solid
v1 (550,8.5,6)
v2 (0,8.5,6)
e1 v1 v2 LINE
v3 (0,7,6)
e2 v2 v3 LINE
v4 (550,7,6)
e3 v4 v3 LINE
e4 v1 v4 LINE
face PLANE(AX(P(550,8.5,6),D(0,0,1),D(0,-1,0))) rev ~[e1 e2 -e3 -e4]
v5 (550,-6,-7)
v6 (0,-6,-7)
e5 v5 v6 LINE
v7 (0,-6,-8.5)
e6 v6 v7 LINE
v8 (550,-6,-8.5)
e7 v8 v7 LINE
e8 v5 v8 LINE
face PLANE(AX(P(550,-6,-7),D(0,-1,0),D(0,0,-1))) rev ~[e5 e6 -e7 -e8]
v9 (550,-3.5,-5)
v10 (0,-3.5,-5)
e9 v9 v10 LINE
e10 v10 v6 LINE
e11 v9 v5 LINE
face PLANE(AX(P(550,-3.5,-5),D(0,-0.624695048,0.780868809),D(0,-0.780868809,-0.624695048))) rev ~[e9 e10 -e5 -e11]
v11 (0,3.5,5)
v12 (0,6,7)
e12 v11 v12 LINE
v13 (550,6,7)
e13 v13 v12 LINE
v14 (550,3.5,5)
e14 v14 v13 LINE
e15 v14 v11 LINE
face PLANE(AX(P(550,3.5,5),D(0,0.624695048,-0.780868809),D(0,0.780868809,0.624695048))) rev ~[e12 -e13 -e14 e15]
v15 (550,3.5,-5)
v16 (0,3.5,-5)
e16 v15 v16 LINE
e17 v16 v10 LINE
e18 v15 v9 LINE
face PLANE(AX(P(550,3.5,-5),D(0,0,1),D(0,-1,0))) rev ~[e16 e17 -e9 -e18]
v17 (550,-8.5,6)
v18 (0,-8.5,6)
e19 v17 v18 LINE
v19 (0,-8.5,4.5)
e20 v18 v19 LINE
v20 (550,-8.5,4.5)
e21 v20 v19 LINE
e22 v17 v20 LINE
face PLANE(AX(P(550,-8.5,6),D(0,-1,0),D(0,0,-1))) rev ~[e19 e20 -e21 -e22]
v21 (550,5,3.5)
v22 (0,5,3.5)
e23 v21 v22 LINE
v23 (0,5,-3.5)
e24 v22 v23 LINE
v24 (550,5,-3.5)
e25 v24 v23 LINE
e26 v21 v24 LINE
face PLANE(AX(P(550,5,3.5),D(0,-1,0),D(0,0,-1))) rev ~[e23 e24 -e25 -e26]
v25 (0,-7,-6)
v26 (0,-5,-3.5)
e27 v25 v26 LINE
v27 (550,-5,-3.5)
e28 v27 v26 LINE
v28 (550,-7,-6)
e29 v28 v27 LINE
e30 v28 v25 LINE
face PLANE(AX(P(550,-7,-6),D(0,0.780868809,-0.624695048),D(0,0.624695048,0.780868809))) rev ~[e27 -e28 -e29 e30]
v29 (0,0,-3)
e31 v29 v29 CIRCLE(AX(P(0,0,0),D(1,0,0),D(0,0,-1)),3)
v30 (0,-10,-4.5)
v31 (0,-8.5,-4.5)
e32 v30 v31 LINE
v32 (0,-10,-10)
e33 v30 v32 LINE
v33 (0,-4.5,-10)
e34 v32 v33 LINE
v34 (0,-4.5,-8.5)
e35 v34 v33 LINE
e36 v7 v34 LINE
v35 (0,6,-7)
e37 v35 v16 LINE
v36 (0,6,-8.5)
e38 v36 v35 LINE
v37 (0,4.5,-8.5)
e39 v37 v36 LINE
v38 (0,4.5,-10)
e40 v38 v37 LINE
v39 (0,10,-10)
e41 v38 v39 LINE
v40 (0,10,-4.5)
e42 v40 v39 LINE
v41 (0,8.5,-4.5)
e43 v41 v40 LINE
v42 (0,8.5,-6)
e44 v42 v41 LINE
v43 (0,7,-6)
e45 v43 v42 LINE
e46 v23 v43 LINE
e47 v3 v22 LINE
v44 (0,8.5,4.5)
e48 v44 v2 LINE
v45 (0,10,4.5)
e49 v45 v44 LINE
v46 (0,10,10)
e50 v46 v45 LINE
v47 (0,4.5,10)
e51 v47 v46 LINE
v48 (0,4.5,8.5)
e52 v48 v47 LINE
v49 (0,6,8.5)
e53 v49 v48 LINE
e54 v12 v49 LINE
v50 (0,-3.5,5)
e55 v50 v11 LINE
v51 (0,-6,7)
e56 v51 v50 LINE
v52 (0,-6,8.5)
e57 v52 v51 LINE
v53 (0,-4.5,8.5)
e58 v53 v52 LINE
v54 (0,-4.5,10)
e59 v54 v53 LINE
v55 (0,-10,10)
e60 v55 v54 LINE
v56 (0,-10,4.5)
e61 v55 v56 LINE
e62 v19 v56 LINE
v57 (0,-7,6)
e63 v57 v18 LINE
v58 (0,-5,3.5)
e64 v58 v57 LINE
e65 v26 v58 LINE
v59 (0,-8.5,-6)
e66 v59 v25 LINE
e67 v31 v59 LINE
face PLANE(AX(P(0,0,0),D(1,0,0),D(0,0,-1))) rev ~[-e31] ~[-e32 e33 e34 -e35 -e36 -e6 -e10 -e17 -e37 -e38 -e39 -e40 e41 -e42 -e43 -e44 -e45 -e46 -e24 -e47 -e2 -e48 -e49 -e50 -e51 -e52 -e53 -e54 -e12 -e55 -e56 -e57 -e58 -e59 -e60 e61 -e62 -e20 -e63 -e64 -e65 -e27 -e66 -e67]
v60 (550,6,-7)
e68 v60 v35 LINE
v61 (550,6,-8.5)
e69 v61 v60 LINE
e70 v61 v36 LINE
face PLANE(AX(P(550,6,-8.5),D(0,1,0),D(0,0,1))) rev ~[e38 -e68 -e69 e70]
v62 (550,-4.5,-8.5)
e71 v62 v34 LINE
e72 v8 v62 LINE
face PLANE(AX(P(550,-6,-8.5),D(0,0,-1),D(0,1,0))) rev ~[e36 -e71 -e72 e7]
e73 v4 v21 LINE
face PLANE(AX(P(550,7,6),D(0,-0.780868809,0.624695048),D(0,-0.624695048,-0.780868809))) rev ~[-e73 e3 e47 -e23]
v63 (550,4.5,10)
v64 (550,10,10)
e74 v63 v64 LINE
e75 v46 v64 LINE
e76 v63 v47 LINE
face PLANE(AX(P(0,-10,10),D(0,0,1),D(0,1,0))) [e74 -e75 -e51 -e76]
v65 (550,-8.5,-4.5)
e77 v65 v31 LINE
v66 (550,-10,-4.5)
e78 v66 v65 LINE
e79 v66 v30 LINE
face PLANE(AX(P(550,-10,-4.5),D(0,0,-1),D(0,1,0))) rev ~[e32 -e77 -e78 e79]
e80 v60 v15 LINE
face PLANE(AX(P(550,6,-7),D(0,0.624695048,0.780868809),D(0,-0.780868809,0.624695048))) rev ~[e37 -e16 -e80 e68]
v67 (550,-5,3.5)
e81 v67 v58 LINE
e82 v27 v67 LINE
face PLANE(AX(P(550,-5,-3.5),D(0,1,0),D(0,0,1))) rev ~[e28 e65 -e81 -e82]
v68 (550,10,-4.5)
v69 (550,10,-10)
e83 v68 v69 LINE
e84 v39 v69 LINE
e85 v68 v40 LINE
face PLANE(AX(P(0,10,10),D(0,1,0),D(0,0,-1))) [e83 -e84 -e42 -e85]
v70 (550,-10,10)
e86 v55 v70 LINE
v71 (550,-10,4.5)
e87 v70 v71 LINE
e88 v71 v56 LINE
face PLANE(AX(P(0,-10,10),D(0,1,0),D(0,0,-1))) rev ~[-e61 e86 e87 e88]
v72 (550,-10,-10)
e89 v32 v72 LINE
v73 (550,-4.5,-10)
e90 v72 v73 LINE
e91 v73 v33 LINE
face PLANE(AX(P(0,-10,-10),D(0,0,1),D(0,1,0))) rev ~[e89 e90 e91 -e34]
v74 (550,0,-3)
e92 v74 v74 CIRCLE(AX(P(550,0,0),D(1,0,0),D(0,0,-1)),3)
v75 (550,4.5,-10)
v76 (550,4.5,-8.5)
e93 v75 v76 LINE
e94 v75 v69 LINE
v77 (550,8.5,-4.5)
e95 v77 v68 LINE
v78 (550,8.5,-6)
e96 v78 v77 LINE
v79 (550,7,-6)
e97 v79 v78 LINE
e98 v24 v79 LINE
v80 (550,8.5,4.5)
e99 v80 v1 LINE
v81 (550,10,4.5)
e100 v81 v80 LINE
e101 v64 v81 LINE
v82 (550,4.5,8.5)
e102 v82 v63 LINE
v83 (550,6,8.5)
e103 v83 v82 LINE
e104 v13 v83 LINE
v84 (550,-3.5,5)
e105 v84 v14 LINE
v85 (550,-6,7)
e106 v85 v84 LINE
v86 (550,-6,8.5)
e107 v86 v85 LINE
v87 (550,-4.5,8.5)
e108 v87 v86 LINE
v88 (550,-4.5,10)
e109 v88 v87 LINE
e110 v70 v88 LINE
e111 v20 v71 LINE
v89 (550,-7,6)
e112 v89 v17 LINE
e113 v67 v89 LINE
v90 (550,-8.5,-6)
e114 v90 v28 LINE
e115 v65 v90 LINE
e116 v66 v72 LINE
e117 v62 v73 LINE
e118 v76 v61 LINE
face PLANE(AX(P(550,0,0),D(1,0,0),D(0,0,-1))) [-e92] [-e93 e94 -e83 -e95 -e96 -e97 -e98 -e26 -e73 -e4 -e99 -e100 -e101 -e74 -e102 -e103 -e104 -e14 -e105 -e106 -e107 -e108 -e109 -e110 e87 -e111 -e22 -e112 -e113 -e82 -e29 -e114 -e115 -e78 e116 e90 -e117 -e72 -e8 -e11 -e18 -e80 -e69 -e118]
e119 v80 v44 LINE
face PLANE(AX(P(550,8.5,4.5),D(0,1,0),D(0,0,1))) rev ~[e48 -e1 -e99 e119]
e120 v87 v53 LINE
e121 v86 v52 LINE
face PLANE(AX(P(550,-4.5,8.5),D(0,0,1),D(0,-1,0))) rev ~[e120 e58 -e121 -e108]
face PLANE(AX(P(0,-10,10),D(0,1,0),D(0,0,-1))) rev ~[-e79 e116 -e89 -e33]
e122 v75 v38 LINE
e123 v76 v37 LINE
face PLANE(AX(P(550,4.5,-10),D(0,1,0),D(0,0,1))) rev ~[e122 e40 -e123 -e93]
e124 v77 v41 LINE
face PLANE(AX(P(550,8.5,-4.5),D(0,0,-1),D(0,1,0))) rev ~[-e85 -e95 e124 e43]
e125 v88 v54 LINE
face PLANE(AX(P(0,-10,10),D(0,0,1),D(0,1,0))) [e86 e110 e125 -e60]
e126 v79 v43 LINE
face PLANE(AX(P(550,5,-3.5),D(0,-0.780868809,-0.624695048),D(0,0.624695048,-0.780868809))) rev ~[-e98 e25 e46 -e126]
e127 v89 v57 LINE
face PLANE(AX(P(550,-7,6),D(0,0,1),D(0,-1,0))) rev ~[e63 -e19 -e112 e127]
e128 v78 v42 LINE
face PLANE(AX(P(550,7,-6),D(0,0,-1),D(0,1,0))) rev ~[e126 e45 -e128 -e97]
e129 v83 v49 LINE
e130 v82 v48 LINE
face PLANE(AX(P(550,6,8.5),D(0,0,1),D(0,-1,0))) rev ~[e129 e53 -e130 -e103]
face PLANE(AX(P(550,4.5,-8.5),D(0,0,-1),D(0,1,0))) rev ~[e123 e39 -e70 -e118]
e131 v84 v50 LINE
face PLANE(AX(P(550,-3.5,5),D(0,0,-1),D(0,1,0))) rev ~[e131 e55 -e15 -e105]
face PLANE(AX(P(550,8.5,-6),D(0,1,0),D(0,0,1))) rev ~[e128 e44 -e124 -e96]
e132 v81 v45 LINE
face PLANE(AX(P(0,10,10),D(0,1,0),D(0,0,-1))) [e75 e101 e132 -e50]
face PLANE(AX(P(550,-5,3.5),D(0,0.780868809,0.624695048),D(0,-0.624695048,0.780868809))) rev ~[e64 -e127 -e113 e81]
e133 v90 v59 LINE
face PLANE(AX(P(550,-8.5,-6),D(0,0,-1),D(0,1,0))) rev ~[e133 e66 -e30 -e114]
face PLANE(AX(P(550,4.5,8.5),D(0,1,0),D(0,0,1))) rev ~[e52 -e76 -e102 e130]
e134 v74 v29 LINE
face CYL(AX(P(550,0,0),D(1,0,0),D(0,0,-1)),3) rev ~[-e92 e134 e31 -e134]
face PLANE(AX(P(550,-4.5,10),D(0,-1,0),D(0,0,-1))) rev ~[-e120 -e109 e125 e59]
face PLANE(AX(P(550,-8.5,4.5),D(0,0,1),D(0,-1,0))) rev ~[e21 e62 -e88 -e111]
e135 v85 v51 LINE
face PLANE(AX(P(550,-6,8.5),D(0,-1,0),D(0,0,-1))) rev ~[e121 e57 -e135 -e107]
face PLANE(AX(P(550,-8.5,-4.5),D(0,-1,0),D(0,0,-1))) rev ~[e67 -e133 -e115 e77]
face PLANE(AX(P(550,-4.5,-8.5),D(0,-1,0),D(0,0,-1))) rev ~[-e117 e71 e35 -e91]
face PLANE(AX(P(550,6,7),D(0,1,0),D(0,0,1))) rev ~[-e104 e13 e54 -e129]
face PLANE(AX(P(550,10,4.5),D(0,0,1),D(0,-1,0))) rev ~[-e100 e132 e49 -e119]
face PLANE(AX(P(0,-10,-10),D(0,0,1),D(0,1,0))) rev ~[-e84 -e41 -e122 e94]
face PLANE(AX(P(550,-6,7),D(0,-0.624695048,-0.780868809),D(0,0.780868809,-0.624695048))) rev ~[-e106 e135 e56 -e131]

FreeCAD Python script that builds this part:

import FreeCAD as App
import Part
import Sketcher
from FreeCAD import Vector


def add_polygon(sketch, points):
    """Adds a closed chain of lines whose ends are joined by coincident constraints."""
    first, n = sketch.GeometryCount, len(points)
    for a, b in zip(points, points[1:] + points[:1]):
        sketch.addGeometry(Part.LineSegment(App.Vector(*a, 0), App.Vector(*b, 0)), False)
    for i in range(n):
        sketch.addConstraint(Sketcher.Constraint("Coincident", first + i, 2, first + (i + 1) % n, 1))

doc = App.newDocument("Part")
body = doc.addObject("PartDesign::Body", "Body")

sketch1 = body.newObject("Sketcher::SketchObject", "Sketch")
sketch1.AttachmentSupport = (doc.getObject("YZ_Plane"), [""])
sketch1.MapMode = "FlatFace"
add_polygon(sketch1, [(10, 10), (-10, 10), (-10, -10), (10, -10)])
sketch1.addConstraint(Sketcher.Constraint("Horizontal", 0))
sketch1.addConstraint(Sketcher.Constraint("Vertical", 1))
sketch1.addConstraint(Sketcher.Constraint("Horizontal", 2))
sketch1.addConstraint(Sketcher.Constraint("Vertical", 3))
sketch1.addConstraint(Sketcher.Constraint("Symmetric", 0, 2, 2, 2, -1, 1))
sketch1.addConstraint(Sketcher.Constraint("Equal", 2, 1))
sketch1.addConstraint(Sketcher.Constraint("DistanceX", 0, 2, 0, 1, 20.0))
pad1 = body.newObject("PartDesign::Pad", "Pad")
pad1.Profile = sketch1
pad1.Length = 550

sketch2 = body.newObject("Sketcher::SketchObject", "Sketch001")
sketch2.AttachmentSupport = (doc.getObject("YZ_Plane"), [""])
sketch2.MapMode = "FlatFace"
sketch2.AttachmentOffset = App.Placement(Vector(0, 0, 550), App.Rotation())
sketch2.addGeometry(Part.Circle(Vector(0, 0, 0), Vector(0, 0, 1), 3), False)
sketch2.addConstraint(Sketcher.Constraint("Coincident", 0, 3, -1, 1))
sketch2.addConstraint(Sketcher.Constraint("Diameter", 0, 6.0))
pocket1 = body.newObject("PartDesign::Pocket", "Pocket")
pocket1.Profile = sketch2
pocket1.Type = "ThroughAll"

sketch3 = body.newObject("Sketcher::SketchObject", "Sketch002")
sketch3.AttachmentSupport = (doc.getObject("YZ_Plane"), [""])
sketch3.MapMode = "FlatFace"
sketch3.AttachmentOffset = App.Placement(Vector(0, 0, 550), App.Rotation())
add_polygon(sketch3, [(5, -3.5), (7, -6), (8.5, -6), (8.5, -4.5), (10, -4.5), (10, 4.5), (8.5, 4.5), (8.5, 6), (7, 6), (5, 3.5)])
sketch3.addConstraint(Sketcher.Constraint("Horizontal", 1))
sketch3.addConstraint(Sketcher.Constraint("Vertical", 2))
sketch3.addConstraint(Sketcher.Constraint("Horizontal", 3))
sketch3.addConstraint(Sketcher.Constraint("Vertical", 4))
sketch3.addConstraint(Sketcher.Constraint("Horizontal", 5))
sketch3.addConstraint(Sketcher.Constraint("Vertical", 6))
sketch3.addConstraint(Sketcher.Constraint("Horizontal", 7))
sketch3.addConstraint(Sketcher.Constraint("Vertical", 9))
sketch3.addConstraint(Sketcher.Constraint("Symmetric", 2, 2, 5, 2, -1))
sketch3.addConstraint(Sketcher.Constraint("Symmetric", 0, 2, 7, 2, -1))
sketch3.addConstraint(Sketcher.Constraint("Equal", 1, 3))
sketch3.addConstraint(Sketcher.Constraint("Equal", 7, 2))
sketch3.addConstraint(Sketcher.Constraint("Equal", 0, 8))
sketch3.addConstraint(Sketcher.Constraint("DistanceY", 4, 1, 4, 2, 9.0))
sketch3.addConstraint(Sketcher.Constraint("DistanceY", 9, 2, 9, 1, 7.0))
sketch3.addConstraint(Sketcher.Constraint("DistanceX", 1, 1, 1, 2, 1.5))
sketch3.addConstraint(Sketcher.Constraint("DistanceX", -1, 1, 0, 2, 7.0))
sketch3.addConstraint(Sketcher.Constraint("DistanceX", -1, 1, 8, 2, 5.0))
pocket2 = body.newObject("PartDesign::Pocket", "Pocket001")
pocket2.Profile = sketch3
pocket2.Type = "ThroughAll"
doc.recompute()

polarpattern = body.newObject("PartDesign::PolarPattern", "PolarPattern")
polarpattern.Originals = [pocket2]
polarpattern.Axis = (doc.getObject("X_Axis"), [""])
polarpattern.Angle = 360
polarpattern.Occurrences = 4
body.Tip = polarpattern

doc.recompute()
